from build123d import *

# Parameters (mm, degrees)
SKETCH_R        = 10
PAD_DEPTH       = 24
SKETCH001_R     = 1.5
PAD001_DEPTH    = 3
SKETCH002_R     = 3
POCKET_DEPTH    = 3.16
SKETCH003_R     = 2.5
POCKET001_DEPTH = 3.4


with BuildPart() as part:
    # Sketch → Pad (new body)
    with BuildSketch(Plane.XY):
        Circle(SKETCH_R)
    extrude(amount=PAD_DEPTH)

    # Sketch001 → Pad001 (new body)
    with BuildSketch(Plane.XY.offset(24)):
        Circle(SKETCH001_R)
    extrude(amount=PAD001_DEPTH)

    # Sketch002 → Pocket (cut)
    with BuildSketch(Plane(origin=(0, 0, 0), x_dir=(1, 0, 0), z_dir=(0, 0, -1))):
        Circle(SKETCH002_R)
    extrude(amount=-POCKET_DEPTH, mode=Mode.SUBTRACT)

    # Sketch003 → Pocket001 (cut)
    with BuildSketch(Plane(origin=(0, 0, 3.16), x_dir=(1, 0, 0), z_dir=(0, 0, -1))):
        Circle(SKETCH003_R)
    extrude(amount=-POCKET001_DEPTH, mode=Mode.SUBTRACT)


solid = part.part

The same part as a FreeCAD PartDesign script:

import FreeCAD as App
import Part
import Sketcher

doc = App.newDocument("Part")
body = doc.addObject("PartDesign::Body", "Body")

sketch1 = doc.addObject("Sketcher::SketchObject", "Sketch")
body.addObject(sketch1)
sketch1.AttachmentSupport = (doc.XY_Plane, [""])
sketch1.MapMode = "FlatFace"
sketch1.addGeometry(Part.Circle(App.Vector(0, 0, 0), App.Vector(0, 0, 1), 10), False)
sketch1.addConstraint(Sketcher.Constraint("Coincident", 0, 3, -1, 1))
sketch1.addConstraint(Sketcher.Constraint("Diameter", 0, 20.0))
pad1 = doc.addObject("PartDesign::Pad", "Pad")
body.addObject(pad1)
pad1.Profile = sketch1
pad1.Length = 24

sketch2 = doc.addObject("Sketcher::SketchObject", "Sketch001")
body.addObject(sketch2)
sketch2.AttachmentSupport = (doc.XY_Plane, [""])
sketch2.MapMode = "FlatFace"
sketch2.AttachmentOffset = App.Placement(App.Vector(0, 0, 24), App.Rotation())
sketch2.addGeometry(Part.Circle(App.Vector(0, 0, 0), App.Vector(0, 0, 1), 1.5), False)
sketch2.addConstraint(Sketcher.Constraint("Coincident", 0, 3, -1, 1))
sketch2.addConstraint(Sketcher.Constraint("Diameter", 0, 3.0))
pad2 = doc.addObject("PartDesign::Pad", "Pad001")
body.addObject(pad2)
pad2.Profile = sketch2
pad2.Length = 3

sketch3 = doc.addObject("Sketcher::SketchObject", "Sketch002")
body.addObject(sketch3)
sketch3.AttachmentSupport = (doc.XY_Plane, [""])
sketch3.MapMode = "FlatFace"
sketch3.addGeometry(Part.Circle(App.Vector(0, 0, 0), App.Vector(0, 0, 1), 3), False)
sketch3.addConstraint(Sketcher.Constraint("Coincident", 0, 3, -1, 1))
sketch3.addConstraint(Sketcher.Constraint("Diameter", 0, 6.0))
pocket1 = doc.addObject("PartDesign::Pocket", "Pocket")
body.addObject(pocket1)
pocket1.Profile = sketch3
pocket1.Length = 3.16
pocket1.Reversed = True

sketch4 = doc.addObject("Sketcher::SketchObject", "Sketch003")
body.addObject(sketch4)
sketch4.AttachmentSupport = (doc.XY_Plane, [""])
sketch4.MapMode = "FlatFace"
sketch4.AttachmentOffset = App.Placement(App.Vector(0, 0, 3.16), App.Rotation())
sketch4.addGeometry(Part.Circle(App.Vector(0, 0, 0), App.Vector(0, 0, 1), 2.5), False)
sketch4.addConstraint(Sketcher.Constraint("Coincident", 0, 3, -1, 1))
sketch4.addConstraint(Sketcher.Constraint("Diameter", 0, 5.0))
pocket2 = doc.addObject("PartDesign::Pocket", "Pocket001")
body.addObject(pocket2)
pocket2.Profile = sketch4
pocket2.Length = 3.4
pocket2.Reversed = True

doc.recompute()
